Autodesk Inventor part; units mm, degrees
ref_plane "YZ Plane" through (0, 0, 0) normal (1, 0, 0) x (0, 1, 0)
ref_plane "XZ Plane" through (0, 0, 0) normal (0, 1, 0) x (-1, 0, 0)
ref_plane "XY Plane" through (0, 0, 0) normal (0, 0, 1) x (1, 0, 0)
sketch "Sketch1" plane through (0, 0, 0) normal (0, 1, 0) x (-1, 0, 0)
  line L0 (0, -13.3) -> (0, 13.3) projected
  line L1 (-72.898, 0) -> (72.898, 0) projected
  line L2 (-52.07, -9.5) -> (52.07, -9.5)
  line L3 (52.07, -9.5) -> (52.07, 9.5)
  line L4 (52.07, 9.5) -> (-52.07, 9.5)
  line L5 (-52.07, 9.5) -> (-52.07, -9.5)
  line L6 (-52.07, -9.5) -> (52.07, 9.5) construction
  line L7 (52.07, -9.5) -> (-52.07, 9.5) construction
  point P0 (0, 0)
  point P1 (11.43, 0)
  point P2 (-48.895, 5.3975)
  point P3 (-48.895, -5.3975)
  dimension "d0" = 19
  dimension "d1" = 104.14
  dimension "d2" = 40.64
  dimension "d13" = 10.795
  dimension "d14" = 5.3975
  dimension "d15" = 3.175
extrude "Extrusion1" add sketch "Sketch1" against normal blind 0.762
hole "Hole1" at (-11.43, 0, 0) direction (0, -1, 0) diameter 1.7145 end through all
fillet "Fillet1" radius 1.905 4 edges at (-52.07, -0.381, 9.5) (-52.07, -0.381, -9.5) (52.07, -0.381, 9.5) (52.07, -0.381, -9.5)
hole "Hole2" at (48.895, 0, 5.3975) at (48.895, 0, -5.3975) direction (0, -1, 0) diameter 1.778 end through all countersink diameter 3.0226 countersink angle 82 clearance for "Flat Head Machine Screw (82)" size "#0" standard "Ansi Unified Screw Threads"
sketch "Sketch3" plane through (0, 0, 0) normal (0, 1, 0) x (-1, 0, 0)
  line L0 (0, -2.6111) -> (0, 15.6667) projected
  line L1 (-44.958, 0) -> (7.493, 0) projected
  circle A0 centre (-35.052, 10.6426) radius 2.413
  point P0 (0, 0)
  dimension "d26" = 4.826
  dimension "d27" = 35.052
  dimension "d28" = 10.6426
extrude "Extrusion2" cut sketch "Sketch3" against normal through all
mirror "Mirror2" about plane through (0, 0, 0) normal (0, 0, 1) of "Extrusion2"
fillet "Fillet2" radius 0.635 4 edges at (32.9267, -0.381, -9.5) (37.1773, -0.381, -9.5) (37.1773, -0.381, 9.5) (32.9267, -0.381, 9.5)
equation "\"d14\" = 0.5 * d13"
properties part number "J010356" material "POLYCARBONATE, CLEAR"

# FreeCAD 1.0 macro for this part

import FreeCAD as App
import Part
import Sketcher
Q = App.Units.Quantity


def edges_at(feature, points):
    """Names of the edges that pass closest to the given points."""
    edges = feature.Shape.Edges
    near = lambda p: min(range(len(edges)), key=lambda i: edges[i].distToShape(Part.Vertex(*p))[0])
    return sorted({f"Edge{near(p) + 1}" for p in points})

doc = App.newDocument("Part")
body = doc.addObject("PartDesign::Body", "Body")

# Sketch on XZ plane
sketch1 = doc.addObject("Sketcher::SketchObject", "Sketch")
body.addObject(sketch1)
sketch1.AttachmentSupport = (doc.XZ_Plane, [""])
sketch1.MapMode = "FlatFace"
sketch1.addGeometry(Part.LineSegment(App.Vector(52, -10, 0), App.Vector(-52, -10, 0)), False)
sketch1.addGeometry(Part.LineSegment(App.Vector(-52, -10, 0), App.Vector(-52, 10, 0)), False)
sketch1.addGeometry(Part.LineSegment(App.Vector(-52, 10, 0), App.Vector(52, 10, 0)), False)
sketch1.addGeometry(Part.LineSegment(App.Vector(52, 10, 0), App.Vector(52, -10, 0)), False)
sketch1.addConstraint(Sketcher.Constraint("Coincident", 0, 2, 1, 1))
sketch1.addConstraint(Sketcher.Constraint("Coincident", 1, 2, 2, 1))
sketch1.addConstraint(Sketcher.Constraint("Coincident", 2, 2, 3, 1))
sketch1.addConstraint(Sketcher.Constraint("Coincident", 3, 2, 0, 1))
sketch1.addConstraint(Sketcher.Constraint("Horizontal", 0))
sketch1.addConstraint(Sketcher.Constraint("Vertical", 1))
sketch1.addConstraint(Sketcher.Constraint("Horizontal", 2))
sketch1.addConstraint(Sketcher.Constraint("Vertical", 3))
sketch1.addConstraint(Sketcher.Constraint("Symmetric", 0, 2, 2, 2, -1, 1))
sketch1.addConstraint(Sketcher.Constraint("DistanceX", 0, 2, 0, 1, Q("4.1 in")))
sketch1.addConstraint(Sketcher.Constraint("DistanceY", 1, 1, 1, 2, Q("19 mm")))
pad1 = doc.addObject("PartDesign::Pad", "Pad")
body.addObject(pad1)
pad1.Profile = sketch1
pad1.Length = Q("0.03 in")

# Sketch on XZ plane
sketch2 = doc.addObject("Sketcher::SketchObject", "Sketch001")
body.addObject(sketch2)
sketch2.AttachmentSupport = (doc.XZ_Plane, [""])
sketch2.MapMode = "FlatFace"
sketch2.addGeometry(Part.Circle(App.Vector(-11.4, 0, 0), App.Vector(0, 0, 1), 0.9), False)
sketch2.addConstraint(Sketcher.Constraint("PointOnObject", 0, 3, -1))
sketch2.addConstraint(Sketcher.Constraint("Diameter", 0, Q("0.0675 in")))
sketch2.addConstraint(Sketcher.Constraint("DistanceX", 0, 3, -1, 1, Q("0.45 in")))
doc.recompute()
hole = doc.addObject("PartDesign::Hole", "Hole")
body.addObject(hole)
hole.Profile = sketch2
hole.ThreadType = "None"
hole.Diameter = Q("0.0675 in")
hole.DepthType = "ThroughAll"
hole.Reversed = True
doc.recompute()

fillet = doc.addObject("PartDesign::Fillet", "Fillet")
body.addObject(fillet)
fillet.Base = (hole, edges_at(hole, [
    (-52.07, -0.381, 9.5),
    (-52.07, -0.381, -9.5),
    (52.07, -0.381, 9.5),
    (52.07, -0.381, -9.5),
]))
fillet.Radius = Q("0.075 in")

# Sketch on XZ plane
sketch3 = doc.addObject("Sketcher::SketchObject", "Sketch002")
body.addObject(sketch3)
sketch3.AttachmentSupport = (doc.XZ_Plane, [""])
sketch3.MapMode = "FlatFace"
sketch3.addGeometry(Part.Circle(App.Vector(48.9, 5.4, 0), App.Vector(0, 0, 1), 0.9), False)
sketch3.addGeometry(Part.Circle(App.Vector(48.9, -5.4, 0), App.Vector(0, 0, 1), 0.9), False)
sketch3.addConstraint(Sketcher.Constraint("Equal", 0, 1))
sketch3.addConstraint(Sketcher.Constraint("Symmetric", 0, 3, 1, 3, -1))
sketch3.addConstraint(Sketcher.Constraint("Diameter", 0, Q("0.07 in")))
sketch3.addConstraint(Sketcher.Constraint("DistanceX", -1, 1, 0, 3, Q("1.925 in")))
sketch3.addConstraint(Sketcher.Constraint("DistanceY", 1, 3, 0, 3, Q("0.425 in")))
doc.recompute()
hole2 = doc.addObject("PartDesign::Hole", "Hole001")
body.addObject(hole2)
hole2.Profile = sketch3
hole2.ThreadType = "None"
hole2.Diameter = Q("0.07 in")
hole2.DepthType = "ThroughAll"
hole2.HoleCutType = "Countersink"
hole2.HoleCutDiameter = Q("0.119 in")
hole2.HoleCutCountersinkAngle = 82
hole2.Reversed = True

# Sketch on XZ plane
sketch4 = doc.addObject("Sketcher::SketchObject", "Sketch003")
body.addObject(sketch4)
sketch4.AttachmentSupport = (doc.XZ_Plane, [""])
sketch4.MapMode = "FlatFace"
sketch4.addGeometry(Part.Circle(App.Vector(35.1, 10.6, 0), App.Vector(0, 0, 1), 2.4), False)
sketch4.addConstraint(Sketcher.Constraint("Diameter", 0, Q("0.19 in")))
sketch4.addConstraint(Sketcher.Constraint("DistanceX", -1, 1, 0, 3, Q("1.38 in")))
sketch4.addConstraint(Sketcher.Constraint("DistanceY", -1, 1, 0, 3, Q("0.419 in")))
pocket1 = doc.addObject("PartDesign::Pocket", "Pocket")
body.addObject(pocket1)
pocket1.Profile = sketch4
pocket1.Type = "ThroughAll"
pocket1.Reversed = True
doc.recompute()

mirrored = doc.addObject("PartDesign::Mirrored", "Mirrored")
body.addObject(mirrored)
mirrored.Originals = [pocket1]
mirrored.MirrorPlane = (doc.XY_Plane, [""])
body.Tip = mirrored
doc.recompute()

fillet2 = doc.addObject("PartDesign::Fillet", "Fillet001")
body.addObject(fillet2)
fillet2.Base = (mirrored, edges_at(mirrored, [
    (32.927, -0.381, -9.5),
    (37.177, -0.381, -9.5),
    (37.177, -0.381, 9.5),
    (32.927, -0.381, 9.5),
]))
fillet2.Radius = Q("0.025 in")

doc.recompute()
